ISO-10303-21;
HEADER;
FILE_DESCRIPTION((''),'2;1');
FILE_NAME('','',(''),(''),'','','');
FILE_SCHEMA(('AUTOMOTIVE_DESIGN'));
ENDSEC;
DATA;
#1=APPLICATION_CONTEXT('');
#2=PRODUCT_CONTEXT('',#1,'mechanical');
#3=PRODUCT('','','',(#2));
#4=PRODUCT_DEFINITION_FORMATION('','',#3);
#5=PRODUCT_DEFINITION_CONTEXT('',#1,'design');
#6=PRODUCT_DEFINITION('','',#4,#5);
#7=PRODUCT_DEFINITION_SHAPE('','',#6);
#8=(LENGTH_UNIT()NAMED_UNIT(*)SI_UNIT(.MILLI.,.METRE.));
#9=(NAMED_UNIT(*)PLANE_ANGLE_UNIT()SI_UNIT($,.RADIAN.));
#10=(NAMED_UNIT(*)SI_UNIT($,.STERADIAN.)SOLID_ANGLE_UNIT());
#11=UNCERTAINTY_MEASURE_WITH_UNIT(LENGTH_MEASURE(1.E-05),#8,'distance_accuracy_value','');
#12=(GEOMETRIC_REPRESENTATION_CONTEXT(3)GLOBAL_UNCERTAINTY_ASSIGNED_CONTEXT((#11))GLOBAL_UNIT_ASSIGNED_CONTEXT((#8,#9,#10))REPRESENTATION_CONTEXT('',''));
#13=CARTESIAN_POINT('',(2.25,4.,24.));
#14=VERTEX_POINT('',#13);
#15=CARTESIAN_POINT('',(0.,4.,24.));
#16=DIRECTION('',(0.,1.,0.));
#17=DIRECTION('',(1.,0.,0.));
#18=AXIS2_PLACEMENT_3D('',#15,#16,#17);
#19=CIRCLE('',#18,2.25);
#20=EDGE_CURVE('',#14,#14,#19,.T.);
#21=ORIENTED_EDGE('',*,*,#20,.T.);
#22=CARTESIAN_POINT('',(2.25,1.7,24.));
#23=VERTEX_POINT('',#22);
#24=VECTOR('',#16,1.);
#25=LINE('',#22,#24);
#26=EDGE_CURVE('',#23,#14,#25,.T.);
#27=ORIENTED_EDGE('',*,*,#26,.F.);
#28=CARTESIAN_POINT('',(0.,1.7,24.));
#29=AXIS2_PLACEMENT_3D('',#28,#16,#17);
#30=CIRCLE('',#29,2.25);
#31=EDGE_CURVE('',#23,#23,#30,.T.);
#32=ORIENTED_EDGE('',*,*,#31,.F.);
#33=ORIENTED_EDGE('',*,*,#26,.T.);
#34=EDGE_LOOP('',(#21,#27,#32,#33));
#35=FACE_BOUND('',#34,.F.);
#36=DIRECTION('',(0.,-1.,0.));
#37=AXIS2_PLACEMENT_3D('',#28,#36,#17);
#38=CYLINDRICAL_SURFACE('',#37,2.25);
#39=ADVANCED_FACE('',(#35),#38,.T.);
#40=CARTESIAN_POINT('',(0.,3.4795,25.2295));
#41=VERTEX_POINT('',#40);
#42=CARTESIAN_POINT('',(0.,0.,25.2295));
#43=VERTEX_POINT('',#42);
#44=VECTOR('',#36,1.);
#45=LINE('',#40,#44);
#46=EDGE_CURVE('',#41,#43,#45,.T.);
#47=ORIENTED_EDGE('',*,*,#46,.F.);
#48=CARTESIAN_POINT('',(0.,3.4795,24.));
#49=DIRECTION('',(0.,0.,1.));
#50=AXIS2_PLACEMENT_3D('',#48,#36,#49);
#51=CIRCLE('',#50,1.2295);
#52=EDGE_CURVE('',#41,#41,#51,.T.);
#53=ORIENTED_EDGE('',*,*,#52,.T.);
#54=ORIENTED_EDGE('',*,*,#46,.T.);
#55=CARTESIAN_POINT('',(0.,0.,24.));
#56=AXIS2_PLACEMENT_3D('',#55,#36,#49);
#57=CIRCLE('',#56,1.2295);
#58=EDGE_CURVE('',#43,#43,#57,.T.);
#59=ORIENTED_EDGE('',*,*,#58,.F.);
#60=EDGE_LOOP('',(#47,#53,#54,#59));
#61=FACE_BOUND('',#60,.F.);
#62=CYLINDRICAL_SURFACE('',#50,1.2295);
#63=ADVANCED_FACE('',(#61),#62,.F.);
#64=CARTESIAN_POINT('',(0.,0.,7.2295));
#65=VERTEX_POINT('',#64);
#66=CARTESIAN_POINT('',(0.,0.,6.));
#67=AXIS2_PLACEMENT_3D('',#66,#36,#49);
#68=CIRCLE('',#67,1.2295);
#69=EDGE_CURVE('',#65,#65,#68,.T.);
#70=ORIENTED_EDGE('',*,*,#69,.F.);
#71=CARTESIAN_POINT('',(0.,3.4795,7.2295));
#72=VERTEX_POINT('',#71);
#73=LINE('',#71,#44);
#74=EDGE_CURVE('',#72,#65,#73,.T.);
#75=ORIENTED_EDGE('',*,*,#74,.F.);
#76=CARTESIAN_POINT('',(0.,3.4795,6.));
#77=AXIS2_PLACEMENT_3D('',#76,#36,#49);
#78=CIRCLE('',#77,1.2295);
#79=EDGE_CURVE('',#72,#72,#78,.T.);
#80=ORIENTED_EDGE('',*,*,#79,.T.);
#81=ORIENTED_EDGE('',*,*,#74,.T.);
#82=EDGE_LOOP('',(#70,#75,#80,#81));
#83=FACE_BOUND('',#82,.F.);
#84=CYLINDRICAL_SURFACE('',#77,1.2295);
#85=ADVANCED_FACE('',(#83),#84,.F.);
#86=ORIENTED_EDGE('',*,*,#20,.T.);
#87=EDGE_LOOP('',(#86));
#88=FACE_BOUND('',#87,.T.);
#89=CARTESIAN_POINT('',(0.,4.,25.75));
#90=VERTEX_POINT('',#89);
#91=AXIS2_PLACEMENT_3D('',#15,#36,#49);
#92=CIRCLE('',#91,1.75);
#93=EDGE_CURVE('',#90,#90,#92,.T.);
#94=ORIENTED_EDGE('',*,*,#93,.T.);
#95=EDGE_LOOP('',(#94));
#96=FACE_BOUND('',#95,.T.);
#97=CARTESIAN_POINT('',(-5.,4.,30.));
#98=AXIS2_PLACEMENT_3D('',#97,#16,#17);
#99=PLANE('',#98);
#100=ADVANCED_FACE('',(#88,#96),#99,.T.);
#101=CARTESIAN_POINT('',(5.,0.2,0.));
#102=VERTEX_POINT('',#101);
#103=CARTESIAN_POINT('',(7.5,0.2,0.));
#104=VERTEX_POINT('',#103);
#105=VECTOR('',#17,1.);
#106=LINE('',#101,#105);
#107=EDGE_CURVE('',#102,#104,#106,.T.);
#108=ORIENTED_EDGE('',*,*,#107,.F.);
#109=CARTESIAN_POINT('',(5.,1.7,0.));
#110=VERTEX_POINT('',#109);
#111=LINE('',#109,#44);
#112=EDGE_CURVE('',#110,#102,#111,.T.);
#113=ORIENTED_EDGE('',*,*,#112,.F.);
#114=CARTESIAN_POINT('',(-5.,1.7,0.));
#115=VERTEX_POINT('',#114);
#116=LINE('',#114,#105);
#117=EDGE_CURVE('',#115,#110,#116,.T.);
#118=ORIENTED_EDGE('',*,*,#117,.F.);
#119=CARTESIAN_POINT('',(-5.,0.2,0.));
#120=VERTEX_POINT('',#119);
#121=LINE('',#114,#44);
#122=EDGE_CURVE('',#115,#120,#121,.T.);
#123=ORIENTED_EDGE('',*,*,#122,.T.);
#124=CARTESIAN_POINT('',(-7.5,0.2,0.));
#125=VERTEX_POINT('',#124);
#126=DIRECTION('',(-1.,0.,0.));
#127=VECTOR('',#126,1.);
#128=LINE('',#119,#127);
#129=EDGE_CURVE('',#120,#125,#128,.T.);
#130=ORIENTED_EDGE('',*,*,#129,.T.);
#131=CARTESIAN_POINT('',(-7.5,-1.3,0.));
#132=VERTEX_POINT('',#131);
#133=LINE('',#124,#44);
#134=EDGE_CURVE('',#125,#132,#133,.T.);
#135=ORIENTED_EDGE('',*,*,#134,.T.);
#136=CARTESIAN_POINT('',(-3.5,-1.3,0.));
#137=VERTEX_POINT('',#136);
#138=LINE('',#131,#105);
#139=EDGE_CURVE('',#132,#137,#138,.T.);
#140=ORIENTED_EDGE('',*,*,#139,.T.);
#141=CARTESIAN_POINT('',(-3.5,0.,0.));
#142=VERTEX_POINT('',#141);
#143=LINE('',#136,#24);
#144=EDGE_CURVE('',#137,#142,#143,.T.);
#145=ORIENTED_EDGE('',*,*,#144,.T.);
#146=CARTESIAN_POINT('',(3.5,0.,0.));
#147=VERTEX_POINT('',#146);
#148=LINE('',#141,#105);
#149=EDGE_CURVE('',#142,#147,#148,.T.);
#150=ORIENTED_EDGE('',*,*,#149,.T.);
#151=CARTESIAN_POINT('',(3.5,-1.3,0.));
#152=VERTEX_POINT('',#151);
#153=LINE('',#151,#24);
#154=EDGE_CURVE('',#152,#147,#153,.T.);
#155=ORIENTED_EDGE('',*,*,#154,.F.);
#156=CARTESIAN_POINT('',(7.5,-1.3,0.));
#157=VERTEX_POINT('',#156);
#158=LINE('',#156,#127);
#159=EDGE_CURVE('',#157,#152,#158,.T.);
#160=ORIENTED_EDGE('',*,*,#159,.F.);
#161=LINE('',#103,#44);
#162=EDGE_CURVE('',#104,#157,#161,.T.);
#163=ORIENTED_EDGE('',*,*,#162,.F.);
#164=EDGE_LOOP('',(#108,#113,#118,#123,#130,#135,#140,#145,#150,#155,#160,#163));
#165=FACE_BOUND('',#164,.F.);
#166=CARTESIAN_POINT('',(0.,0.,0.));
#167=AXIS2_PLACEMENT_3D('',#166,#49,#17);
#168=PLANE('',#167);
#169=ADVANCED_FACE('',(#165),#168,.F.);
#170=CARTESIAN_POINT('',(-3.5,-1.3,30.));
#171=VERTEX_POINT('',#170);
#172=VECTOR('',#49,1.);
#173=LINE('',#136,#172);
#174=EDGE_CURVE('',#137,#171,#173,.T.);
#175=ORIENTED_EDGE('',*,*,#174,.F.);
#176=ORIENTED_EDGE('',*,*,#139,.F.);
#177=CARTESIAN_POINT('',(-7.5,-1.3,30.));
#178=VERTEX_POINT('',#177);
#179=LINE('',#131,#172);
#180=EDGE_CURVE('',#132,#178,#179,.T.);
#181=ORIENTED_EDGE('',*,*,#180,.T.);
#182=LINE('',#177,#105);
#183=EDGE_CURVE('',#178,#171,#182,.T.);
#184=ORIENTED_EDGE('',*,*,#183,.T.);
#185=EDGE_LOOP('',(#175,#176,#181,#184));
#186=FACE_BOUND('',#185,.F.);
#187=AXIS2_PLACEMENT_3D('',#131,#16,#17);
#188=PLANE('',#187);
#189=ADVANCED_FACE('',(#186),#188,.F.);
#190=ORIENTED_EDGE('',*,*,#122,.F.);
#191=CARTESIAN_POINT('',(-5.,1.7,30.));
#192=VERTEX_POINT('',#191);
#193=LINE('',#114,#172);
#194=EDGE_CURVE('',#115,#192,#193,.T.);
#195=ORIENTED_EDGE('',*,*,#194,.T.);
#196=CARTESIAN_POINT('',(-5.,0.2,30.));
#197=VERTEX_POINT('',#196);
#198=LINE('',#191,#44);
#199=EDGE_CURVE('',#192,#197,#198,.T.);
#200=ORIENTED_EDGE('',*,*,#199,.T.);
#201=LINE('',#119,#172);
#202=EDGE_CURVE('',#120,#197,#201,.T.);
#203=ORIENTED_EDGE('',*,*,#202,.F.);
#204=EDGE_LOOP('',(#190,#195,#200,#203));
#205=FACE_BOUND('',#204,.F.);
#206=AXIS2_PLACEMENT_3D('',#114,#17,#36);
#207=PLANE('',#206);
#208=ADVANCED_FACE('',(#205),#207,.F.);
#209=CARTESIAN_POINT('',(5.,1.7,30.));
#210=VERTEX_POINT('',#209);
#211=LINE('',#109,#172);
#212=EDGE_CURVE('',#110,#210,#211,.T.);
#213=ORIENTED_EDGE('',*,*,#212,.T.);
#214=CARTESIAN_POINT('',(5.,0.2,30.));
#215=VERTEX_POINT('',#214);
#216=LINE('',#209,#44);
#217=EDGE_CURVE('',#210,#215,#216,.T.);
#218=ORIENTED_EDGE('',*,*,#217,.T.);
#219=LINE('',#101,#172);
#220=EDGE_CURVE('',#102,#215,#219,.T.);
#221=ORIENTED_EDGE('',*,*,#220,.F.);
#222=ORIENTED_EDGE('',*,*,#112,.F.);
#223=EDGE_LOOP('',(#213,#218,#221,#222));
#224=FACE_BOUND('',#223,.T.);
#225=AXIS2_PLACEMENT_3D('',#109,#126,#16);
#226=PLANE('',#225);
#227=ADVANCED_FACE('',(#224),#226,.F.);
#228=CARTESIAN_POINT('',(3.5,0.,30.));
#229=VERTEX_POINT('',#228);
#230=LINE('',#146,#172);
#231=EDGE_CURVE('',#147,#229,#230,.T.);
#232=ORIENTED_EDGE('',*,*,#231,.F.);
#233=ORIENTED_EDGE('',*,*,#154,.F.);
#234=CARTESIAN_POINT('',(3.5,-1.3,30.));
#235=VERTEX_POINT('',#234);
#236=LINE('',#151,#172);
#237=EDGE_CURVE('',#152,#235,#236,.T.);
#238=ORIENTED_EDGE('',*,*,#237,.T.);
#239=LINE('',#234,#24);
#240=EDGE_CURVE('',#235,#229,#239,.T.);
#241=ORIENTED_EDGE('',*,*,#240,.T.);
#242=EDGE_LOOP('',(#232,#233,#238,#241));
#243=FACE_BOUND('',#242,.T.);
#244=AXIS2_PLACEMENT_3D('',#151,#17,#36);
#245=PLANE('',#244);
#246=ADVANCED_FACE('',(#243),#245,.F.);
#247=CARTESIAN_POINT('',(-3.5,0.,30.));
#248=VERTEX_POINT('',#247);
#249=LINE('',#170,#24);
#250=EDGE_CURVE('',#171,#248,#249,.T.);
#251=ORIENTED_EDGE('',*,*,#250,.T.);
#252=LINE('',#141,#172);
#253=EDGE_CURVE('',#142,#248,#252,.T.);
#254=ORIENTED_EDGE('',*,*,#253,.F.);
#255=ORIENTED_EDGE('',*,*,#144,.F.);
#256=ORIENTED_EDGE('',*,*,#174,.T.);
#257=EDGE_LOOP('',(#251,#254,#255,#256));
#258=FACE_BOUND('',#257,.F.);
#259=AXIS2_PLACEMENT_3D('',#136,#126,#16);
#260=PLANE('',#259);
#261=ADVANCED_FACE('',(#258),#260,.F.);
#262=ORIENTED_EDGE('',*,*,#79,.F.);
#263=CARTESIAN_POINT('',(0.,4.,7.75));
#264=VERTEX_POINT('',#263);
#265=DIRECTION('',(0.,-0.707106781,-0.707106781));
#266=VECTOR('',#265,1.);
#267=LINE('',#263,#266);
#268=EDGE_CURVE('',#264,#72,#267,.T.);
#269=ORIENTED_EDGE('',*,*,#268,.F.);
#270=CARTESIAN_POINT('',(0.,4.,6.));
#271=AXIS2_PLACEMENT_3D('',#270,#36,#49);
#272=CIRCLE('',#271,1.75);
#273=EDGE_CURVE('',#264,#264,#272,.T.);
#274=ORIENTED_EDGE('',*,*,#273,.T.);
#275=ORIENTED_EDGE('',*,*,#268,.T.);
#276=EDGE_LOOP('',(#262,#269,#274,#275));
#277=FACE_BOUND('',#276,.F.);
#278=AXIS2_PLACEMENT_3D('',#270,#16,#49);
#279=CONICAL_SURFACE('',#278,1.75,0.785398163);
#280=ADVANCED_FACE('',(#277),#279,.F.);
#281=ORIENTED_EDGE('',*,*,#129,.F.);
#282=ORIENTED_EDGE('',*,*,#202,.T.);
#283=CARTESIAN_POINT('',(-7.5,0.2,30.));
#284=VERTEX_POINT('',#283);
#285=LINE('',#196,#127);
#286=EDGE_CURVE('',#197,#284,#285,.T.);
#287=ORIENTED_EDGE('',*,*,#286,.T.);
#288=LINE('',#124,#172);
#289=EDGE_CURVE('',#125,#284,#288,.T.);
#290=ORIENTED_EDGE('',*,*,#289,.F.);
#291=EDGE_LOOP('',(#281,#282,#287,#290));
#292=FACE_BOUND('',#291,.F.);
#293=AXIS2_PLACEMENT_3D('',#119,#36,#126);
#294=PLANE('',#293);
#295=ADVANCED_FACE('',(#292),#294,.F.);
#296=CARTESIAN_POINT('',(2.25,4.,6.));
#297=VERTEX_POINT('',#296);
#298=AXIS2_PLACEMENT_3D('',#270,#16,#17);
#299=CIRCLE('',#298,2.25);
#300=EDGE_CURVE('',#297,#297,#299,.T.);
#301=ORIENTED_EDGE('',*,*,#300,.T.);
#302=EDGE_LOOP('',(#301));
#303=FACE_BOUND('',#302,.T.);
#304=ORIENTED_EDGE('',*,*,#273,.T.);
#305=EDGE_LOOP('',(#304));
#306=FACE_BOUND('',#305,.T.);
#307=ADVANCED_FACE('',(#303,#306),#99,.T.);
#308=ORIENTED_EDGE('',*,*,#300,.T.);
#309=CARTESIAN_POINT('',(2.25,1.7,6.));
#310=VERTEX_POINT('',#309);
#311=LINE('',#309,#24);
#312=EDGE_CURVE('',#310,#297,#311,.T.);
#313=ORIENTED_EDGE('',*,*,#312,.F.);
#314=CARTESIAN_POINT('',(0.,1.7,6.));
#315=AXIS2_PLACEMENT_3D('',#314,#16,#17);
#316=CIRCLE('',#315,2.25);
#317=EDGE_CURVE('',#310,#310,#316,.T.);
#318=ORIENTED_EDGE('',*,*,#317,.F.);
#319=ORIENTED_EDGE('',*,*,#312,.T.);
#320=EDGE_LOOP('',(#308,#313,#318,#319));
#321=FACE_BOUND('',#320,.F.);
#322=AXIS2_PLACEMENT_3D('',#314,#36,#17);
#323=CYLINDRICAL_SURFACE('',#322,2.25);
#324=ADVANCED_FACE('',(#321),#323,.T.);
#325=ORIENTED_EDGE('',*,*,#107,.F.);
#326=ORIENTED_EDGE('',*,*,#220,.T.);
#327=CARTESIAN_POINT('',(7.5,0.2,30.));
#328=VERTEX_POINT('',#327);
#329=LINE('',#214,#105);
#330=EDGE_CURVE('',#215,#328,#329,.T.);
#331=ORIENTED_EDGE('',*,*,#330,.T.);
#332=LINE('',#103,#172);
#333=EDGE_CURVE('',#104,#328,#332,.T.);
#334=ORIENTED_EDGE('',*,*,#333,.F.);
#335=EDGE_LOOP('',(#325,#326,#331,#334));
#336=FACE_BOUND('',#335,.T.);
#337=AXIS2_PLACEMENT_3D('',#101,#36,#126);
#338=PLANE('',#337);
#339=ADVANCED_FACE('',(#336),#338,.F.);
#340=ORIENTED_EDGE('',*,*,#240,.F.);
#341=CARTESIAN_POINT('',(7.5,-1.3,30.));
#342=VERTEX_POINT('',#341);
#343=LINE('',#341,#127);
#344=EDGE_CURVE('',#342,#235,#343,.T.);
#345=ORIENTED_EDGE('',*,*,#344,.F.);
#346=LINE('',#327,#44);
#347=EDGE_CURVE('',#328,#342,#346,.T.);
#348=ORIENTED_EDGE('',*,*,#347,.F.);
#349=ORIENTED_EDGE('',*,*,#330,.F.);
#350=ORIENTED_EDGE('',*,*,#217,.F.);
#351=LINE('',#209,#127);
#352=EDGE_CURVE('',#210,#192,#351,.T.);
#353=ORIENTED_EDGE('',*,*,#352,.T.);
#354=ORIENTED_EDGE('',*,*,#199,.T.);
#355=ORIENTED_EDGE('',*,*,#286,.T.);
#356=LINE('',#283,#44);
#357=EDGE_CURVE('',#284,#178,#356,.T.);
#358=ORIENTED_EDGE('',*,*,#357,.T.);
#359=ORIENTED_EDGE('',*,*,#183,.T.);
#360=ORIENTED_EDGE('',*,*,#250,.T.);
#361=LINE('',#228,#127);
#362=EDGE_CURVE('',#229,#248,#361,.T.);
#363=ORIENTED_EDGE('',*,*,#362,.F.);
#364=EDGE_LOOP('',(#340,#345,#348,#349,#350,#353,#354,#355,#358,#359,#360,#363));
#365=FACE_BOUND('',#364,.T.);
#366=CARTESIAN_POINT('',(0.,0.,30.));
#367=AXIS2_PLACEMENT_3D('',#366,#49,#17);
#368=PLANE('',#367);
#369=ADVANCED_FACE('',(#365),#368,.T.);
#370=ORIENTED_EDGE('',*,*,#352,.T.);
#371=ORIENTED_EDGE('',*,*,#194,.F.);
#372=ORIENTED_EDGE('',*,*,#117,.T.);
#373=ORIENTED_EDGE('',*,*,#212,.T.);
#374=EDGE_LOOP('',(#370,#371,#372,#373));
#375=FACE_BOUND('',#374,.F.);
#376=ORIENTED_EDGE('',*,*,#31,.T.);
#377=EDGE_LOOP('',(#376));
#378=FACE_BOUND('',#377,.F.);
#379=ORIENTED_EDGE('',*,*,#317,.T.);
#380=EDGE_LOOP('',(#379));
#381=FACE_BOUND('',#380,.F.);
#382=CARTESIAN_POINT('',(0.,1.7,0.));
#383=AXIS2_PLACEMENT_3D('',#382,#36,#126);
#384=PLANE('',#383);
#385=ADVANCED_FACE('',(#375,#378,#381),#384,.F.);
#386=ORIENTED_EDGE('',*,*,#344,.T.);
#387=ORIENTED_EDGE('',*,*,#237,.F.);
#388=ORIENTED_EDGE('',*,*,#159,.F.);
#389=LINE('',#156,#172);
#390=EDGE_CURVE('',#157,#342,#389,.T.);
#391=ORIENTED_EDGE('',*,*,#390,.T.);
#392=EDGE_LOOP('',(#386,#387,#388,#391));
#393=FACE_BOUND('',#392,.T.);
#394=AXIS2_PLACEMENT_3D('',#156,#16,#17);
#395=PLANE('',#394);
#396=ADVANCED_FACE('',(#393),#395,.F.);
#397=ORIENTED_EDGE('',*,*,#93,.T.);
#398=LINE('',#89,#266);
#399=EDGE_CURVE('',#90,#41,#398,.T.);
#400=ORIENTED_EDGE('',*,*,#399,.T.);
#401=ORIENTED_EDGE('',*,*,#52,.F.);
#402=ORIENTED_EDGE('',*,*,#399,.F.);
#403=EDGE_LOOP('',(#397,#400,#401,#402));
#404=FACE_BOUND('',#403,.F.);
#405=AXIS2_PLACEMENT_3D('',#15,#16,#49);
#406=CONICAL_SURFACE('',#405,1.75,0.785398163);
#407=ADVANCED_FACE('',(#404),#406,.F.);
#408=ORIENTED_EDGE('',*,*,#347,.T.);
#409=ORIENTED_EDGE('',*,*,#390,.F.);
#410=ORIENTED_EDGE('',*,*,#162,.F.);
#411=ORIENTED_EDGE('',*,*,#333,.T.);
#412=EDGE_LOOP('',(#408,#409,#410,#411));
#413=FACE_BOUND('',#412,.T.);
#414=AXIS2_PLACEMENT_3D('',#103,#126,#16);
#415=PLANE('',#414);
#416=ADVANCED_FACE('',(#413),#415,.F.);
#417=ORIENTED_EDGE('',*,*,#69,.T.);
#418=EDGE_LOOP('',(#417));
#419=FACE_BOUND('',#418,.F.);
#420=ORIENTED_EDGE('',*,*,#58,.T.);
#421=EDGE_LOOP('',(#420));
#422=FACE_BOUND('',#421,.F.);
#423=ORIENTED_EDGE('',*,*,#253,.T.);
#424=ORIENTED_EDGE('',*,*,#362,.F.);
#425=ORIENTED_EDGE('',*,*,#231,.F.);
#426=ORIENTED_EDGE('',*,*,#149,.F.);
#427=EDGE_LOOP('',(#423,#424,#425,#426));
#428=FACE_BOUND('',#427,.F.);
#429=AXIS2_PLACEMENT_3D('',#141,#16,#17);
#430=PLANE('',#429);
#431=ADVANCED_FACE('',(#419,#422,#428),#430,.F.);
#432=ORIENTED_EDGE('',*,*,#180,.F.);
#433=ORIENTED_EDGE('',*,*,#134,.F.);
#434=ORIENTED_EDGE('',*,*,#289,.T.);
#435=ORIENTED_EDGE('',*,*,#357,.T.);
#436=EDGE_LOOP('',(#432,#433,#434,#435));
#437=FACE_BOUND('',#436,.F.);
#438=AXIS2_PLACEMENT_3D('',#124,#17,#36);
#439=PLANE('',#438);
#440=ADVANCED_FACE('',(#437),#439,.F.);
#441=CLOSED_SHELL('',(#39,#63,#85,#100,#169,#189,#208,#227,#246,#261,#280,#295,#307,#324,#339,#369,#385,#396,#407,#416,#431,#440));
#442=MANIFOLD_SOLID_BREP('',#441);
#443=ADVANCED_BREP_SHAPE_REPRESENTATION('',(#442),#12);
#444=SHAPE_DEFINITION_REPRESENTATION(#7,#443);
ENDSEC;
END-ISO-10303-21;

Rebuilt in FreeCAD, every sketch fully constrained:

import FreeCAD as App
import Part
import Sketcher

V = App.Vector
Q = App.Units.Quantity

doc = App.newDocument("Part")
body = doc.addObject("PartDesign::Body", "Body")

# Sketch on XY plane
sketch1 = body.newObject("Sketcher::SketchObject", "Sketch")
sketch1.AttachmentSupport = (doc.getObject("XY_Plane"), [""])
sketch1.MapMode = "FlatFace"
sketch1.addGeometry(Part.LineSegment(V(-3.5, 0, 0), V(0, 0, 0)), False)
sketch1.addGeometry(Part.LineSegment(V(0, 0, 0), V(0, 1.7, 0)), False)
sketch1.addGeometry(Part.LineSegment(V(0, 1.7, 0), V(-5, 1.7, 0)), False)
sketch1.addGeometry(Part.LineSegment(V(-5, 1.7, 0), V(-5, 0.2, 0)), False)
sketch1.addGeometry(Part.LineSegment(V(-5, 0.2, 0), V(-7.5, 0.2, 0)), False)
sketch1.addGeometry(Part.LineSegment(V(-7.5, 0.2, 0), V(-7.5, -1.3, 0)), False)
sketch1.addGeometry(Part.LineSegment(V(-7.5, -1.3, 0), V(-3.5, -1.3, 0)), False)
sketch1.addGeometry(Part.LineSegment(V(-3.5, -1.3, 0), V(-3.5, 0, 0)), False)
sketch1.addConstraint(Sketcher.Constraint("Coincident", 0, 2, 1, 1))
sketch1.addConstraint(Sketcher.Constraint("Coincident", 1, 2, 2, 1))
sketch1.addConstraint(Sketcher.Constraint("Coincident", 2, 2, 3, 1))
sketch1.addConstraint(Sketcher.Constraint("Coincident", 3, 2, 4, 1))
sketch1.addConstraint(Sketcher.Constraint("Coincident", 4, 2, 5, 1))
sketch1.addConstraint(Sketcher.Constraint("Coincident", 5, 2, 6, 1))
sketch1.addConstraint(Sketcher.Constraint("Coincident", 6, 2, 7, 1))
sketch1.addConstraint(Sketcher.Constraint("Coincident", 7, 2, 0, 1))
sketch1.addConstraint(Sketcher.Constraint("Horizontal", 0))
sketch1.addConstraint(Sketcher.Constraint("Vertical", 1))
sketch1.addConstraint(Sketcher.Constraint("Horizontal", 2))
sketch1.addConstraint(Sketcher.Constraint("Vertical", 3))
sketch1.addConstraint(Sketcher.Constraint("Horizontal", 4))
sketch1.addConstraint(Sketcher.Constraint("Vertical", 5))
sketch1.addConstraint(Sketcher.Constraint("Horizontal", 6))
sketch1.addConstraint(Sketcher.Constraint("Vertical", 7))
sketch1.addConstraint(Sketcher.Constraint("Coincident", 0, 2, -1, 1))
sketch1.addConstraint(Sketcher.Constraint("Equal", 3, 5))
sketch1.addConstraint(Sketcher.Constraint("DistanceX", 2, 2, 2, 1, Q("5 mm")))
sketch1.addConstraint(Sketcher.Constraint("DistanceX", 6, 1, 6, 2, Q("4 mm")))
sketch1.addConstraint(Sketcher.Constraint("DistanceX", 4, 2, 4, 1, Q("2.5 mm")))
sketch1.addConstraint(Sketcher.Constraint("DistanceY", 1, 1, 1, 2, Q("1.7 mm")))
sketch1.addConstraint(Sketcher.Constraint("DistanceY", 3, 2, 3, 1, Q("1.5 mm")))
pad1 = body.newObject("PartDesign::Pad", "Pad")
pad1.Profile = sketch1
pad1.Length = 30
doc.recompute()

mirrored = body.newObject("PartDesign::Mirrored", "Mirrored")
mirrored.Originals = [pad1]
mirrored.MirrorPlane = (doc.getObject("YZ_Plane"), [""])
body.Tip = mirrored

# Sketch on XZ plane
sketch2 = body.newObject("Sketcher::SketchObject", "Sketch001")
sketch2.AttachmentSupport = (doc.getObject("XZ_Plane"), [""])
sketch2.MapMode = "FlatFace"
sketch2.AttachmentOffset = App.Placement(V(0, 0, -1.7), App.Rotation())
sketch2.addGeometry(Part.Circle(V(0, 6, 0), V(0, 0, 1), 2.2), False)
sketch2.addGeometry(Part.Circle(V(0, 24, 0), V(0, 0, 1), 2.2), False)
sketch2.addConstraint(Sketcher.Constraint("Equal", 0, 1))
sketch2.addConstraint(Sketcher.Constraint("PointOnObject", 0, 3, -2))
sketch2.addConstraint(Sketcher.Constraint("PointOnObject", 1, 3, -2))
sketch2.addConstraint(Sketcher.Constraint("Diameter", 0, Q("4.5 mm")))
sketch2.addConstraint(Sketcher.Constraint("DistanceY", 0, 3, 1, 3, Q("18 mm")))
sketch2.addConstraint(Sketcher.Constraint("DistanceY", -1, 1, 0, 3, Q("6 mm")))
pad2 = body.newObject("PartDesign::Pad", "Pad001")
pad2.Profile = sketch2
pad2.Length = 2.3
pad2.Reversed = True

# Sketch on XZ plane
sketch3 = body.newObject("Sketcher::SketchObject", "Sketch002")
sketch3.AttachmentSupport = (doc.getObject("XZ_Plane"), [""])
sketch3.MapMode = "FlatFace"
sketch3.AttachmentOffset = App.Placement(V(0, 0, -4), App.Rotation())
sketch3.addGeometry(Part.Circle(V(0, 24, 0), V(0, 0, 1), 1.2), False)
sketch3.addGeometry(Part.Circle(V(0, 6, 0), V(0, 0, 1), 1.2), False)
sketch3.addConstraint(Sketcher.Constraint("Equal", 0, 1))
sketch3.addConstraint(Sketcher.Constraint("PointOnObject", 0, 3, -2))
sketch3.addConstraint(Sketcher.Constraint("PointOnObject", 1, 3, -2))
sketch3.addConstraint(Sketcher.Constraint("Diameter", 0, Q("2.459 mm")))
sketch3.addConstraint(Sketcher.Constraint("DistanceY", -1, 1, 0, 3, Q("24 mm")))
sketch3.addConstraint(Sketcher.Constraint("DistanceY", -1, 1, 1, 3, Q("6 mm")))
doc.recompute()
hole = body.newObject("PartDesign::Hole", "Hole")
hole.Profile = sketch3
hole.ThreadType = "None"
hole.Diameter = 2.459
hole.DepthType = "ThroughAll"
hole.HoleCutType = "Countersink"
hole.HoleCutDiameter = 3.5
hole.HoleCutCountersinkAngle = 90
hole.Reversed = True

doc.recompute()
